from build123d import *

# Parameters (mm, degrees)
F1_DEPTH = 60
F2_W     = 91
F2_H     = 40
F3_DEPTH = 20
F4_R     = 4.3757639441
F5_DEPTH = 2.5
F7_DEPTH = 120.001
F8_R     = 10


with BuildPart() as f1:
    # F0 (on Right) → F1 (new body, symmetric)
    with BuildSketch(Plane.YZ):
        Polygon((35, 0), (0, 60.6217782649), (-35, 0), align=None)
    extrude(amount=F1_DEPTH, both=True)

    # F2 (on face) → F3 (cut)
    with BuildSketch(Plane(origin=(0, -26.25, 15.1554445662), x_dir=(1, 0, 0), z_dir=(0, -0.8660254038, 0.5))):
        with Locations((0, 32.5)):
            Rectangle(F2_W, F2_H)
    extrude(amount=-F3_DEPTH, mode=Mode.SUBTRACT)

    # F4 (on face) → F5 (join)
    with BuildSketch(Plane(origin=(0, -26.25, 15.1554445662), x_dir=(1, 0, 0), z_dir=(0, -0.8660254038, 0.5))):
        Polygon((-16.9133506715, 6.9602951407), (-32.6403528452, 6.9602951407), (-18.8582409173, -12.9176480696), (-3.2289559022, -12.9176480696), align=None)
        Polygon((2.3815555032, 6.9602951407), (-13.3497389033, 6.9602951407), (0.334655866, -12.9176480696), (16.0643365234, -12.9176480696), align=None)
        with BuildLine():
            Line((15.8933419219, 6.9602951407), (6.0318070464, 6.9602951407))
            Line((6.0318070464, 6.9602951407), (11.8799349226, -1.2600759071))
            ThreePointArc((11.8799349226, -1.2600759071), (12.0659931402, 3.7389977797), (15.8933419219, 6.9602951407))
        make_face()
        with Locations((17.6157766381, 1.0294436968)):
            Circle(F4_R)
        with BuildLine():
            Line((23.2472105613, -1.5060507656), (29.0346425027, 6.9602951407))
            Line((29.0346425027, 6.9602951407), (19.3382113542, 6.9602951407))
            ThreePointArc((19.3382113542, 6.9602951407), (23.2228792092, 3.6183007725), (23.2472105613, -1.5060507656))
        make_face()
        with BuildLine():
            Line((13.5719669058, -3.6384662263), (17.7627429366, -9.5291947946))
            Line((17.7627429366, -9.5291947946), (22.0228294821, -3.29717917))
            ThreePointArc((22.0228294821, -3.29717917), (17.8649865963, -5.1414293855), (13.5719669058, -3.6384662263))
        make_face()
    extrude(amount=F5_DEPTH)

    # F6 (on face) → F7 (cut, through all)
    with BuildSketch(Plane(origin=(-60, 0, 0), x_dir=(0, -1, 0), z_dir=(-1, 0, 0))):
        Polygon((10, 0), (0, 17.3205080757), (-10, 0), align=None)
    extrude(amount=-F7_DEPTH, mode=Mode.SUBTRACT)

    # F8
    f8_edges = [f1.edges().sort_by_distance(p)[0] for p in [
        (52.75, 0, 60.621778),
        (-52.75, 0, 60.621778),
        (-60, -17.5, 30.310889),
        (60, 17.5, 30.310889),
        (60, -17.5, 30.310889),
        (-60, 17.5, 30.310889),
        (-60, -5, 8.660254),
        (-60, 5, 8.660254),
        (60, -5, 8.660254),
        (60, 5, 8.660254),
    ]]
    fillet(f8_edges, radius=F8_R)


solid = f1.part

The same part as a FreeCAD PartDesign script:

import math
import FreeCAD as App
import Part
import Sketcher
Q = App.Units.Quantity


def edges_at(feature, points):
    """Names of the edges that pass closest to the given points."""
    edges = feature.Shape.Edges
    near = lambda p: min(range(len(edges)), key=lambda i: edges[i].distToShape(Part.Vertex(*p))[0])
    return sorted({f"Edge{near(p) + 1}" for p in points})

doc = App.newDocument("Part")
body = doc.addObject("PartDesign::Body", "Body")

sketch1 = body.newObject("Sketcher::SketchObject", "Sketch")
sketch1.AttachmentSupport = (doc.getObject("YZ_Plane"), [""])
sketch1.MapMode = "FlatFace"
sketch1.addGeometry([
    Part.LineSegment(App.Vector(35, 0, 0), App.Vector(0, 61, 0)),
    Part.LineSegment(App.Vector(0, 61, 0), App.Vector(-35, 0, 0)),
    Part.LineSegment(App.Vector(-35, 0, 0), App.Vector(35, 0, 0)),
], False)
sketch1.addConstraint([
    Sketcher.Constraint("Coincident", 0, 2, 1, 1),
    Sketcher.Constraint("Coincident", 1, 2, 2, 1),
    Sketcher.Constraint("Coincident", 2, 2, 0, 1),
    Sketcher.Constraint("Horizontal", 2),
    Sketcher.Constraint("Symmetric", 1, 2, 2, 2, -1, 1),
    Sketcher.Constraint("PointOnObject", 0, 2, -2),
    Sketcher.Constraint("DistanceX", 2, 1, 2, 2, Q("70 mm")),
    Sketcher.Constraint("Angle", 0, Q("120 deg")),
])
pad1 = body.newObject("PartDesign::Pad", "Pad")
pad1.Profile = sketch1
pad1.Length = 120
pad1.Midplane = True

sketch2 = body.newObject("Sketcher::SketchObject", "Sketch001")
sketch2.Placement = App.Placement(App.Vector(0, -26.25, 15.155445), App.Rotation(App.Vector(1, 0, 0), App.Vector(0, 0.5, 0.866025404), App.Vector(0, -0.866025404, 0.5), "ZXY"))
sketch2.addGeometry([
    Part.LineSegment(App.Vector(-46, 53, 0), App.Vector(-46, 13, 0)),
    Part.LineSegment(App.Vector(-46, 13, 0), App.Vector(46, 13, 0)),
    Part.LineSegment(App.Vector(46, 13, 0), App.Vector(46, 53, 0)),
    Part.LineSegment(App.Vector(46, 53, 0), App.Vector(-46, 53, 0)),
], False)
sketch2.addConstraint([
    Sketcher.Constraint("Coincident", 0, 2, 1, 1),
    Sketcher.Constraint("Coincident", 1, 2, 2, 1),
    Sketcher.Constraint("Coincident", 2, 2, 3, 1),
    Sketcher.Constraint("Coincident", 3, 2, 0, 1),
    Sketcher.Constraint("Vertical", 0),
    Sketcher.Constraint("Horizontal", 1),
    Sketcher.Constraint("Vertical", 2),
    Sketcher.Constraint("Horizontal", 3),
    Sketcher.Constraint("DistanceX", 1, 1, 1, 2, Q("91 mm")),
    Sketcher.Constraint("DistanceY", 0, 2, 0, 1, Q("40 mm")),
    Sketcher.Constraint("DistanceX", 0, 2, -1, 1, Q("45.5 mm")),
    Sketcher.Constraint("DistanceY", -1, 1, 0, 2, Q("12.5 mm")),
])
pocket1 = body.newObject("PartDesign::Pocket", "Pocket")
pocket1.Profile = sketch2
pocket1.Length = 20

sketch3 = body.newObject("Sketcher::SketchObject", "Sketch002")
sketch3.Placement = App.Placement(App.Vector(0, -26.25, 15.155445), App.Rotation(App.Vector(1, 0, 0), App.Vector(0, 0.5, 0.866025404), App.Vector(0, -0.866025404, 0.5), "ZXY"))
sketch3.addGeometry([
    Part.LineSegment(App.Vector(-16.9, 7, 0), App.Vector(-32.6, 7, 0)),
    Part.LineSegment(App.Vector(-32.6, 7, 0), App.Vector(-18.9, -12.9, 0)),
    Part.LineSegment(App.Vector(-18.9, -12.9, 0), App.Vector(-3.2, -12.9, 0)),
    Part.LineSegment(App.Vector(-3.2, -12.9, 0), App.Vector(-16.9, 7, 0)),
    Part.LineSegment(App.Vector(2.4, 7, 0), App.Vector(-13.3, 7, 0)),
    Part.LineSegment(App.Vector(-13.3, 7, 0), App.Vector(0.3, -12.9, 0)),
    Part.LineSegment(App.Vector(0.3, -12.9, 0), App.Vector(16.1, -12.9, 0)),
    Part.LineSegment(App.Vector(16.1, -12.9, 0), App.Vector(2.4, 7, 0)),
    Part.LineSegment(App.Vector(15.9, 7, 0), App.Vector(6, 7, 0)),
    Part.LineSegment(App.Vector(6, 7, 0), App.Vector(11.9, -1.3, 0)),
    Part.ArcOfCircle(Part.Circle(App.Vector(17.6, 1, 0), App.Vector(0, 0, 1), 6.2), math.radians(106), math.radians(202)),
    Part.Circle(App.Vector(17.6, 1, 0), App.Vector(0, 0, 1), 4.4),
    Part.LineSegment(App.Vector(23.2, -1.5, 0), App.Vector(29, 7, 0)),
    Part.LineSegment(App.Vector(29, 7, 0), App.Vector(19.3, 7, 0)),
    Part.ArcOfCircle(Part.Circle(App.Vector(17.6, 1, 0), App.Vector(0, 0, 1), 6.2), math.radians(-24), math.radians(74)),
    Part.LineSegment(App.Vector(13.6, -3.6, 0), App.Vector(17.8, -9.5, 0)),
    Part.LineSegment(App.Vector(17.8, -9.5, 0), App.Vector(22, -3.3, 0)),
    Part.ArcOfCircle(Part.Circle(App.Vector(17.6, 1, 0), App.Vector(0, 0, 1), 6.2), math.radians(-131), math.radians(-44)),
], False)
sketch3.addConstraint([
    Sketcher.Constraint("Coincident", 0, 2, 1, 1),
    Sketcher.Constraint("Coincident", 1, 2, 2, 1),
    Sketcher.Constraint("Coincident", 2, 2, 3, 1),
    Sketcher.Constraint("Coincident", 3, 2, 0, 1),
    Sketcher.Constraint("Coincident", 4, 2, 5, 1),
    Sketcher.Constraint("Coincident", 5, 2, 6, 1),
    Sketcher.Constraint("Coincident", 6, 2, 7, 1),
    Sketcher.Constraint("Coincident", 7, 2, 4, 1),
    Sketcher.Constraint("Coincident", 8, 2, 9, 1),
    Sketcher.Constraint("Coincident", 9, 2, 10, 2),
    Sketcher.Constraint("Coincident", 10, 1, 8, 1),
    Sketcher.Constraint("Coincident", 12, 2, 13, 1),
    Sketcher.Constraint("Coincident", 13, 2, 14, 2),
    Sketcher.Constraint("Coincident", 14, 1, 12, 1),
    Sketcher.Constraint("Coincident", 15, 2, 16, 1),
    Sketcher.Constraint("Coincident", 16, 2, 17, 2),
    Sketcher.Constraint("Coincident", 17, 1, 15, 1),
    Sketcher.Constraint("Horizontal", 0),
    Sketcher.Constraint("Horizontal", 2),
    Sketcher.Constraint("Horizontal", 4),
    Sketcher.Constraint("Horizontal", 6),
    Sketcher.Constraint("Horizontal", 8),
    Sketcher.Constraint("Horizontal", 13),
    Sketcher.Constraint("Coincident", 11, 3, 10, 3),
    Sketcher.Constraint("Coincident", 14, 3, 10, 3),
    Sketcher.Constraint("Coincident", 17, 3, 10, 3),
    Sketcher.Constraint("Equal", 10, 14),
    Sketcher.Constraint("Equal", 14, 17),
    Sketcher.Constraint("Parallel", 3, 5),
    Sketcher.Constraint("Parallel", 9, 15),
    Sketcher.Constraint("Parallel", 12, 16),
    Sketcher.Constraint("Horizontal", 3, 2, 4, 2),
    Sketcher.Constraint("Horizontal", 2, 2, 5, 2),
    Sketcher.Constraint("Horizontal", 7, 2, 8, 2),
    Sketcher.Constraint("Horizontal", 10, 1, 12, 2),
    Sketcher.Constraint("Diameter", 11, Q("8.751528 mm")),
    Sketcher.Constraint("Radius", 10, Q("6.175903 mm")),
    Sketcher.Constraint("DistanceX", 13, 2, 14, 1, Q("3.908999 mm")),
    Sketcher.Constraint("DistanceX", 6, 1, 6, 2, Q("15.729681 mm")),
    Sketcher.Constraint("DistanceX", 13, 2, 13, 1, Q("9.696431 mm")),
    Sketcher.Constraint("DistanceX", 10, 1, 12, 2, Q("13.141301 mm")),
    Sketcher.Constraint("Distance", 1, Q("24.188411 mm")),
    Sketcher.Constraint("Distance", 16, Q("7.548931 mm")),
    Sketcher.Constraint("DistanceX", 0, 2, 0, 1, Q("15.727002 mm")),
    Sketcher.Constraint("DistanceX", 2, 1, 2, 2, Q("15.629285 mm")),
    Sketcher.Constraint("DistanceX", 4, 2, 4, 1, Q("15.731294 mm")),
    Sketcher.Constraint("DistanceX", 8, 2, 8, 1, Q("9.861535 mm")),
    Sketcher.Constraint("DistanceX", 1, 2, -1, 1, Q("18.858241 mm")),
    Sketcher.Constraint("DistanceY", 1, 2, -1, 1, Q("12.917648 mm")),
    Sketcher.Constraint("DistanceX", 3, 2, -1, 1, Q("16.913351 mm")),
    Sketcher.Constraint("DistanceX", 4, 2, -1, 1, Q("13.349739 mm")),
    Sketcher.Constraint("DistanceX", -1, 1, 10, 1, Q("15.893342 mm")),
    Sketcher.Constraint("DistanceX", -1, 1, 16, 2, Q("22.022829 mm")),
    Sketcher.Constraint("DistanceX", 9, 2, 10, 3, Q("5.735842 mm")),
])
pad2 = body.newObject("PartDesign::Pad", "Pad001")
pad2.Profile = sketch3
pad2.Length = 2.5

sketch4 = body.newObject("Sketcher::SketchObject", "Sketch003")
sketch4.AttachmentSupport = (doc.getObject("YZ_Plane"), [""])
sketch4.MapMode = "FlatFace"
sketch4.AttachmentOffset = App.Placement(App.Vector(0, 0, -60), App.Rotation())
sketch4.addGeometry([
    Part.LineSegment(App.Vector(-10, 0, 0), App.Vector(0, 17, 0)),
    Part.LineSegment(App.Vector(0, 17, 0), App.Vector(10, 0, 0)),
    Part.LineSegment(App.Vector(10, 0, 0), App.Vector(-10, 0, 0)),
], False)
sketch4.addConstraint([
    Sketcher.Constraint("Coincident", 0, 2, 1, 1),
    Sketcher.Constraint("Coincident", 1, 2, 2, 1),
    Sketcher.Constraint("Coincident", 2, 2, 0, 1),
    Sketcher.Constraint("Horizontal", 2),
    Sketcher.Constraint("Symmetric", 1, 2, 2, 2, -1, 1),
    Sketcher.Constraint("PointOnObject", 0, 2, -2),
    Sketcher.Constraint("DistanceX", 2, 2, 2, 1, Q("20 mm")),
    Sketcher.Constraint("Angle", 0, Q("60 deg")),
])
pocket2 = body.newObject("PartDesign::Pocket", "Pocket001")
pocket2.Profile = sketch4
pocket2.Type = "ThroughAll"
pocket2.Reversed = True
doc.recompute()

fillet = body.newObject("PartDesign::Fillet", "Fillet")
fillet.Base = (pocket2, edges_at(pocket2, [
    (52.75, 0, 60.622),
    (-52.75, 0, 60.622),
    (-60, -17.5, 30.311),
    (60, 17.5, 30.311),
    (60, -17.5, 30.311),
    (-60, 17.5, 30.311),
    (-60, -5, 8.66),
    (-60, 5, 8.66),
    (60, -5, 8.66),
    (60, 5, 8.66),
]))
fillet.Radius = 10

doc.recompute()
